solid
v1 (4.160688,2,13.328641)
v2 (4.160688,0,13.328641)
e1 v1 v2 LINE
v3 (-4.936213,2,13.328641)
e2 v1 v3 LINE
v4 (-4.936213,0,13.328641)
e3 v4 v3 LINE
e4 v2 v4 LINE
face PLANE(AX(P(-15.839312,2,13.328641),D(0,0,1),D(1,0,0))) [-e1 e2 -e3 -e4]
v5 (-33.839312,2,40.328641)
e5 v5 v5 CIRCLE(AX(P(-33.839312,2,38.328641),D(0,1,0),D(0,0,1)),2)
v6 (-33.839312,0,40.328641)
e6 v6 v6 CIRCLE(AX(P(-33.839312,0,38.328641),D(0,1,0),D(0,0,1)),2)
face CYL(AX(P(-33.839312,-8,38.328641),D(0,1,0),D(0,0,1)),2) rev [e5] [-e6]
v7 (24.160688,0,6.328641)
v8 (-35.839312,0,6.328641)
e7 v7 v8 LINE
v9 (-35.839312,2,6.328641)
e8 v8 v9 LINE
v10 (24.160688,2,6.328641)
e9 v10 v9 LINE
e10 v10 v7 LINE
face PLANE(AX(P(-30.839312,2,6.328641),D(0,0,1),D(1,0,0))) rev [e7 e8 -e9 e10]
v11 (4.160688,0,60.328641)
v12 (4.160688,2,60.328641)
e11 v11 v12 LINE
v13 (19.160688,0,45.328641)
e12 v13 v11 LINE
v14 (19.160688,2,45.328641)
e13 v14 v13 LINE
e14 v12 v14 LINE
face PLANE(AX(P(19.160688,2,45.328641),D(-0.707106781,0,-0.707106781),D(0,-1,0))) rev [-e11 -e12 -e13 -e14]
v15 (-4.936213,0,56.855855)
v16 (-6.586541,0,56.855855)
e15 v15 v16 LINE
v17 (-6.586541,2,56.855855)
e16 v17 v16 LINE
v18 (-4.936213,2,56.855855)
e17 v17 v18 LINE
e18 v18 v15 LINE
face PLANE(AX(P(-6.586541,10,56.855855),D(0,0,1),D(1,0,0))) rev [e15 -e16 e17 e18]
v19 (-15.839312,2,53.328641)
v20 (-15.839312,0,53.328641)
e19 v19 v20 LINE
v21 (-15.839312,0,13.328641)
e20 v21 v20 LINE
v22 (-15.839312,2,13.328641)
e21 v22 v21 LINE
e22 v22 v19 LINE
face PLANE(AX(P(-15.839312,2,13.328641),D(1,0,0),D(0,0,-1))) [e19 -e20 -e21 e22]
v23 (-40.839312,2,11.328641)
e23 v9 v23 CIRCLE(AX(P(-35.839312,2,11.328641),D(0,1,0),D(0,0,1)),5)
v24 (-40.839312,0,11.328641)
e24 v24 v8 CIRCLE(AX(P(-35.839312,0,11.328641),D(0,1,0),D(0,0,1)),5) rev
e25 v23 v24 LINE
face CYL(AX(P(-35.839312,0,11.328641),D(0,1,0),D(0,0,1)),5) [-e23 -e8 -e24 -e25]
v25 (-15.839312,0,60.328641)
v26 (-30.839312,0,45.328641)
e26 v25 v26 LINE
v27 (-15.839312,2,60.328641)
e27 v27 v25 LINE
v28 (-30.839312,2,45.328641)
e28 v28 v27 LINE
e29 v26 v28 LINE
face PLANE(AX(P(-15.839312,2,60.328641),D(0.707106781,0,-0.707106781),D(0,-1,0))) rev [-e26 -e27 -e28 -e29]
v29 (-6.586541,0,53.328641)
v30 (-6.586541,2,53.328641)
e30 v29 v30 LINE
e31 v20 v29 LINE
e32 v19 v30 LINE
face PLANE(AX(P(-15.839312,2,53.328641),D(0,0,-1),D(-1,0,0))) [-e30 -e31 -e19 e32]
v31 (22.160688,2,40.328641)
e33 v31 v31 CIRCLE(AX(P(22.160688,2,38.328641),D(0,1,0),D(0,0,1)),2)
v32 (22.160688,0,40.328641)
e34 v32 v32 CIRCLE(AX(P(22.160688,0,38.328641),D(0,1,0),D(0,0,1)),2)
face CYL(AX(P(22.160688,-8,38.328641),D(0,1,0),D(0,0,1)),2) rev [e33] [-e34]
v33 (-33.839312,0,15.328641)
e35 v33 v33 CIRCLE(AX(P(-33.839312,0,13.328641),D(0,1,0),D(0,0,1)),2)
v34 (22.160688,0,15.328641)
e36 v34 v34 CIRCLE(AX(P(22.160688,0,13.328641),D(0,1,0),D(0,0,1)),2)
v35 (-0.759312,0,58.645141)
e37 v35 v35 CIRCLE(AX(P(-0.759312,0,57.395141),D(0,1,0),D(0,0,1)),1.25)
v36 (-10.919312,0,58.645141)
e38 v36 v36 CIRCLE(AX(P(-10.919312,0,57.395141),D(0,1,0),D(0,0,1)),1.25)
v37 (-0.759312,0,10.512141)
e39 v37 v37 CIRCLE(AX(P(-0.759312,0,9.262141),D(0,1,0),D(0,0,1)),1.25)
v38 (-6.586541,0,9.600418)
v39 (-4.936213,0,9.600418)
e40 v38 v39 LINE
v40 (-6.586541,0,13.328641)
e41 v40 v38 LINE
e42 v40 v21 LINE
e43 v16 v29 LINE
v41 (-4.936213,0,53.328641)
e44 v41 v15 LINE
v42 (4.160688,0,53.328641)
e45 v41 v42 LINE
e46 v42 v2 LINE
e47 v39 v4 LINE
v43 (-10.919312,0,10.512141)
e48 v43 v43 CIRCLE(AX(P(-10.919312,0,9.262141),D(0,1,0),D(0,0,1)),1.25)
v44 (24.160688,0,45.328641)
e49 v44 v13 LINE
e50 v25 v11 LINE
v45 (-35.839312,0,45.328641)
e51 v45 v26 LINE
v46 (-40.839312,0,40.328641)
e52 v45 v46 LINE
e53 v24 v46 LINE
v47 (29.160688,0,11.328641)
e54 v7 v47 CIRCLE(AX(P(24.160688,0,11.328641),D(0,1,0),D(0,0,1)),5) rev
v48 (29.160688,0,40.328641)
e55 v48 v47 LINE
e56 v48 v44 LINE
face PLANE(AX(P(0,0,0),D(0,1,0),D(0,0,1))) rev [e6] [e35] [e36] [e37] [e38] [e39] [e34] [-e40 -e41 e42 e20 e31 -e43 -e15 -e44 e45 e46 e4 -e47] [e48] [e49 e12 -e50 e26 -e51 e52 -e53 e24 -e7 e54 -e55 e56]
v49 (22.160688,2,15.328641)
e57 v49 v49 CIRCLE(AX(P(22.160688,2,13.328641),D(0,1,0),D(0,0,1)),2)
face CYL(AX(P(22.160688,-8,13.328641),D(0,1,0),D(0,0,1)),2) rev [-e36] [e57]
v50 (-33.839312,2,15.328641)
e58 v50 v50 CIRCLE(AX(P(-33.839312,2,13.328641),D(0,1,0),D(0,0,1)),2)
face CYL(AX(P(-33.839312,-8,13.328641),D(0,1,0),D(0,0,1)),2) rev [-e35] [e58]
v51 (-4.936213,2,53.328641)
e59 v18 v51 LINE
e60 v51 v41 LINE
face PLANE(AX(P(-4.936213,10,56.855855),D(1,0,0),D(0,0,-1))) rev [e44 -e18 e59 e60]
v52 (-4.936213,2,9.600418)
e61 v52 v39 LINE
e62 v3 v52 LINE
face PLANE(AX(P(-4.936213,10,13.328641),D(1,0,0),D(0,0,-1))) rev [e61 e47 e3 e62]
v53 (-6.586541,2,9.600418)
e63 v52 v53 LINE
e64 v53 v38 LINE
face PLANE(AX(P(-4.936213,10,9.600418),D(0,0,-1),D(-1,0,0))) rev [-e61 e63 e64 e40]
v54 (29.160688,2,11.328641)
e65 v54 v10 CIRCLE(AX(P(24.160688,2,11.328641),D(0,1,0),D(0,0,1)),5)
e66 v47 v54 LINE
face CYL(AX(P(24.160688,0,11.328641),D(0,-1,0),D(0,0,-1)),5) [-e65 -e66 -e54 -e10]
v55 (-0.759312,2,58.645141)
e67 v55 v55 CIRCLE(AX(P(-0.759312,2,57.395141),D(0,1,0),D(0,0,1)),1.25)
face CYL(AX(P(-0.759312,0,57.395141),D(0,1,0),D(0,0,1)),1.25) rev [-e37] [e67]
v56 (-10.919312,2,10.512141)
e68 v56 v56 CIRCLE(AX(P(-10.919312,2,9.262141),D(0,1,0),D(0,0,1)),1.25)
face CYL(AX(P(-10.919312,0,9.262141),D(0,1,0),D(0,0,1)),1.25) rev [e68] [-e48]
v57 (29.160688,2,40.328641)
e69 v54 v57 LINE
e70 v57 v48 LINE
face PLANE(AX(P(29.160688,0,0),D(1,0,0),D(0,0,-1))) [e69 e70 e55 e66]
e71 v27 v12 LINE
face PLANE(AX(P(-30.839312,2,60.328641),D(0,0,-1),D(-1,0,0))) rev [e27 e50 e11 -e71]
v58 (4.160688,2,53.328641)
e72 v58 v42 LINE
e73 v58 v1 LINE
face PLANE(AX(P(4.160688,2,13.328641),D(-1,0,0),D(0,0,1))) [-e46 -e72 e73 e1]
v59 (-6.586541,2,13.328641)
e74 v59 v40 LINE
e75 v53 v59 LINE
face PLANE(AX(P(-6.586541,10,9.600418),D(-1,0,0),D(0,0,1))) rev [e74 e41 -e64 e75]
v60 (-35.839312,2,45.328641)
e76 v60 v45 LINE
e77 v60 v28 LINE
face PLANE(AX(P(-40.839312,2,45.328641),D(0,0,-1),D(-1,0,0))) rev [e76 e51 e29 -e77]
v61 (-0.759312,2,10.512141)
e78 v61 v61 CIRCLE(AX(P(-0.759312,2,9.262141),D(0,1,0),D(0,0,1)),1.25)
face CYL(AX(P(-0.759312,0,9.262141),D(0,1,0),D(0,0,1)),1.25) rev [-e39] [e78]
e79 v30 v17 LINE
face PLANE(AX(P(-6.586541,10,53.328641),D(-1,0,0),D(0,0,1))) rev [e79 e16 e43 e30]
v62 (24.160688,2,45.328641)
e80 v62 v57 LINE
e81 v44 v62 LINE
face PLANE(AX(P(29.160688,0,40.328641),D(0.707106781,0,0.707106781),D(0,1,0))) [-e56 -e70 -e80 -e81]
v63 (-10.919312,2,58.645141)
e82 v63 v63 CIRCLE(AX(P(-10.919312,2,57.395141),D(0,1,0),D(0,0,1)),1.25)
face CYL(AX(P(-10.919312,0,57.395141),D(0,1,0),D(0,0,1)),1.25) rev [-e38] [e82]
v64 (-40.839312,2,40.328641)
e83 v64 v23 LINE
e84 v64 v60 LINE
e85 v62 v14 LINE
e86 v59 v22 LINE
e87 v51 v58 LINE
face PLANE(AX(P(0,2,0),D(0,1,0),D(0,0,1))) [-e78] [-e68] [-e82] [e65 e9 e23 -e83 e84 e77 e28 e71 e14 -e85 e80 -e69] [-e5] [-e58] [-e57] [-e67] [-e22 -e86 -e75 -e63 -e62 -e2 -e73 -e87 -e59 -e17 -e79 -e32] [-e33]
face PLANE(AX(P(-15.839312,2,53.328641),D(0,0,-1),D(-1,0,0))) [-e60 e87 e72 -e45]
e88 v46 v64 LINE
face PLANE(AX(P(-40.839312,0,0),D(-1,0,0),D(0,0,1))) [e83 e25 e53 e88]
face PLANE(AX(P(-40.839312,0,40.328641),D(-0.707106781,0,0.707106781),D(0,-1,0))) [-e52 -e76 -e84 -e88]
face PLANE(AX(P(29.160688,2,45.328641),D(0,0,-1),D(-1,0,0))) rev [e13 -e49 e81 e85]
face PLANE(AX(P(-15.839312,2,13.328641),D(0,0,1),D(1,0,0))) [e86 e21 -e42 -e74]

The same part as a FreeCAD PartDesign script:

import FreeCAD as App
import Part
import Sketcher
from FreeCAD import Vector
Q = App.Units.Quantity


def edges_at(feature, points):
    """Names of the edges that pass closest to the given points."""
    edges = feature.Shape.Edges
    near = lambda p: min(range(len(edges)), key=lambda i: edges[i].distToShape(Part.Vertex(*p))[0])
    return sorted({f"Edge{near(p) + 1}" for p in points})


def add_polygon(sketch, points):
    """Adds a closed chain of lines whose ends are joined by coincident constraints."""
    first, n = sketch.GeometryCount, len(points)
    for a, b in zip(points, points[1:] + points[:1]):
        sketch.addGeometry(Part.LineSegment(App.Vector(*a, 0), App.Vector(*b, 0)), False)
    for i in range(n):
        sketch.addConstraint(Sketcher.Constraint("Coincident", first + i, 2, first + (i + 1) % n, 1))

doc = App.newDocument("Part")
body = doc.addObject("PartDesign::Body", "Body")

# Sketch on XZ plane
sketch1 = body.newObject("Sketcher::SketchObject", "Sketch")
sketch1.AttachmentSupport = (doc.getObject("XZ_Plane"), [""])
sketch1.MapMode = "FlatFace"
add_polygon(sketch1, [(-31, 6), (-31, 60), (19, 60), (19, 6)])  # lines 0-3
add_polygon(sketch1, [(4, 53), (-16, 53), (-16, 13), (4, 13)])  # lines 4-7
sketch1.addConstraint([
    Sketcher.Constraint("Vertical", 0),
    Sketcher.Constraint("Horizontal", 1),
    Sketcher.Constraint("Vertical", 2),
    Sketcher.Constraint("Horizontal", 3),
    Sketcher.Constraint("Horizontal", 4),
    Sketcher.Constraint("Vertical", 5),
    Sketcher.Constraint("Horizontal", 6),
    Sketcher.Constraint("Vertical", 7),
    Sketcher.Constraint("DistanceX", 1, 1, 1, 2, Q("50 mm")),
    Sketcher.Constraint("DistanceX", 4, 2, 4, 1, Q("20 mm")),
    Sketcher.Constraint("DistanceY", 0, 1, 0, 2, Q("54 mm")),
    Sketcher.Constraint("DistanceY", 5, 2, 5, 1, Q("40 mm")),
    Sketcher.Constraint("DistanceX", 0, 2, 4, 2, Q("15 mm")),
    Sketcher.Constraint("DistanceY", 4, 2, 0, 2, Q("7 mm")),
    Sketcher.Constraint("DistanceX", 0, 2, -1, 1, Q("30.839312 mm")),
    Sketcher.Constraint("DistanceY", -1, 1, 0, 2, Q("60.328641 mm")),
])
pad1 = body.newObject("PartDesign::Pad", "Pad")
pad1.Profile = sketch1
pad1.Length = 2
pad1.Reversed = True

# Sketch on XZ plane
sketch2 = body.newObject("Sketcher::SketchObject", "Sketch001")
sketch2.AttachmentSupport = (doc.getObject("XZ_Plane"), [""])
sketch2.MapMode = "FlatFace"
sketch2.AttachmentOffset = App.Placement(Vector(0, 0, -2), App.Rotation())
sketch2.addGeometry([
    Part.Circle(Vector(-10.9, 57.4, 0), Vector(0, 0, 1), 1.2),
    Part.Circle(Vector(-0.8, 57.4, 0), Vector(0, 0, 1), 1.2),
    Part.Circle(Vector(-10.9, 9.3, 0), Vector(0, 0, 1), 1.2),
    Part.Circle(Vector(-0.8, 9.3, 0), Vector(0, 0, 1), 1.2),
], False)
sketch2.addConstraint([
    Sketcher.Constraint("Equal", 0, 1),
    Sketcher.Constraint("Equal", 1, 2),
    Sketcher.Constraint("Equal", 2, 3),
    Sketcher.Constraint("Horizontal", 0, 3, 1, 3),
    Sketcher.Constraint("Horizontal", 2, 3, 3, 3),
    Sketcher.Constraint("Vertical", 0, 3, 2, 3),
    Sketcher.Constraint("Vertical", 1, 3, 3, 3),
    Sketcher.Constraint("Diameter", 0, Q("2.5 mm")),
    Sketcher.Constraint("DistanceX", 0, 3, 1, 3, Q("10.16 mm")),
    Sketcher.Constraint("DistanceY", 2, 3, 0, 3, Q("48.133 mm")),
    Sketcher.Constraint("DistanceX", 0, 3, -1, 1, Q("10.919312 mm")),
    Sketcher.Constraint("DistanceY", -1, 1, 0, 3, Q("57.395141 mm")),
])
pocket1 = body.newObject("PartDesign::Pocket", "Pocket")
pocket1.Profile = sketch2
pocket1.Length = 2
pocket1.Reversed = True
doc.recompute()

chamfer = body.newObject("PartDesign::Chamfer", "Chamfer")
chamfer.Base = (pocket1, edges_at(pocket1, [(19.161, 1, 60.329), (-30.839, 1, 60.329)]))
chamfer.Size = 15

# Sketch on YZ plane
sketch3 = body.newObject("Sketcher::SketchObject", "Sketch002")
sketch3.AttachmentSupport = (doc.getObject("YZ_Plane"), [""])
sketch3.MapMode = "FlatFace"
sketch3.AttachmentOffset = App.Placement(Vector(0, 0, 19.160688), App.Rotation())
add_polygon(sketch3, [(2, 45.3), (0, 45.3), (0, 6.3), (2, 6.3)])  # lines 0-3
sketch3.addConstraint([
    Sketcher.Constraint("Horizontal", 0),
    Sketcher.Constraint("Vertical", 1),
    Sketcher.Constraint("Horizontal", 2),
    Sketcher.Constraint("Vertical", 3),
    Sketcher.Constraint("PointOnObject", 0, 2, -2),
    Sketcher.Constraint("DistanceX", 0, 2, 0, 1, Q("2 mm")),
    Sketcher.Constraint("DistanceY", 1, 2, 1, 1, Q("39 mm")),
    Sketcher.Constraint("DistanceY", -1, 1, 0, 2, Q("45.328641 mm")),
])
pad2 = body.newObject("PartDesign::Pad", "Pad001")
pad2.Profile = sketch3
pad2.Length = 10

# Sketch on YZ plane
sketch4 = body.newObject("Sketcher::SketchObject", "Sketch003")
sketch4.AttachmentSupport = (doc.getObject("YZ_Plane"), [""])
sketch4.MapMode = "FlatFace"
sketch4.AttachmentOffset = App.Placement(Vector(0, 0, -30.839312), App.Rotation())
add_polygon(sketch4, [(2, 6.3), (0, 6.3), (0, 45.3), (2, 45.3)])  # lines 0-3
sketch4.addConstraint([
    Sketcher.Constraint("Horizontal", 0),
    Sketcher.Constraint("Vertical", 1),
    Sketcher.Constraint("Horizontal", 2),
    Sketcher.Constraint("Vertical", 3),
    Sketcher.Constraint("PointOnObject", 0, 2, -2),
    Sketcher.Constraint("DistanceX", 0, 2, 0, 1, Q("2 mm")),
    Sketcher.Constraint("DistanceY", 1, 1, 1, 2, Q("39 mm")),
    Sketcher.Constraint("DistanceY", -1, 1, 0, 2, Q("6.328641 mm")),
])
pad3 = body.newObject("PartDesign::Pad", "Pad002")
pad3.Profile = sketch4
pad3.Length = 10
pad3.Reversed = True
doc.recompute()

chamfer2 = body.newObject("PartDesign::Chamfer", "Chamfer001")
chamfer2.Base = (pad3, edges_at(pad3, [(29.161, 1, 45.329), (-40.839, 1, 45.329)]))
chamfer2.Size = 5

# Sketch on XZ plane
sketch5 = body.newObject("Sketcher::SketchObject", "Sketch004")
sketch5.AttachmentSupport = (doc.getObject("XZ_Plane"), [""])
sketch5.MapMode = "FlatFace"
sketch5.AttachmentOffset = App.Placement(Vector(0, 0, -2), App.Rotation())
sketch5.addGeometry([
    Part.Circle(Vector(22.2, 38.3, 0), Vector(0, 0, 1), 2),
    Part.Circle(Vector(-33.8, 38.3, 0), Vector(0, 0, 1), 2),
    Part.Circle(Vector(-33.8, 13.3, 0), Vector(0, 0, 1), 2),
    Part.Circle(Vector(22.2, 13.3, 0), Vector(0, 0, 1), 2),
], False)
sketch5.addConstraint([
    Sketcher.Constraint("Equal", 0, 1),
    Sketcher.Constraint("Equal", 1, 2),
    Sketcher.Constraint("Equal", 2, 3),
    Sketcher.Constraint("Horizontal", 0, 3, 1, 3),
    Sketcher.Constraint("Horizontal", 2, 3, 3, 3),
    Sketcher.Constraint("Vertical", 1, 3, 2, 3),
    Sketcher.Constraint("Vertical", 0, 3, 3, 3),
    Sketcher.Constraint("Diameter", 0, Q("4 mm")),
    Sketcher.Constraint("DistanceX", 1, 3, 0, 3, Q("56 mm")),
    Sketcher.Constraint("DistanceY", 2, 3, 1, 3, Q("25 mm")),
    Sketcher.Constraint("DistanceX", -1, 1, 0, 3, Q("22.160688 mm")),
    Sketcher.Constraint("DistanceY", -1, 1, 0, 3, Q("38.328641 mm")),
])
pocket2 = body.newObject("PartDesign::Pocket", "Pocket001")
pocket2.Profile = sketch5
pocket2.Length = 10
pocket2.Reversed = True

# Sketch on XZ plane
sketch6 = body.newObject("Sketcher::SketchObject", "Sketch005")
sketch6.AttachmentSupport = (doc.getObject("XZ_Plane"), [""])
sketch6.MapMode = "FlatFace"
add_polygon(sketch6, [(-6.6, 56.9), (-6.6, 53.3), (-4.9, 53.3), (-4.9, 56.9)])  # lines 0-3
add_polygon(sketch6, [(-6.6, 13.3), (-6.6, 9.6), (-4.9, 9.6), (-4.9, 13.3)])  # lines 4-7
sketch6.addConstraint([
    Sketcher.Constraint("Vertical", 0),
    Sketcher.Constraint("Horizontal", 1),
    Sketcher.Constraint("Vertical", 2),
    Sketcher.Constraint("Horizontal", 3),
    Sketcher.Constraint("Vertical", 4),
    Sketcher.Constraint("Horizontal", 5),
    Sketcher.Constraint("Vertical", 6),
    Sketcher.Constraint("Horizontal", 7),
    Sketcher.Constraint("Vertical", 3, 2, 4, 2),
    Sketcher.Constraint("Vertical", 2, 2, 5, 2),
    Sketcher.Constraint("DistanceY", 6, 2, 1, 2, Q("40 mm")),
    Sketcher.Constraint("DistanceX", 1, 1, 1, 2, Q("1.650328 mm")),
    Sketcher.Constraint("DistanceY", 0, 2, 0, 1, Q("3.527213 mm")),
    Sketcher.Constraint("DistanceY", 4, 2, 4, 1, Q("3.728224 mm")),
    Sketcher.Constraint("DistanceX", 0, 2, -1, 1, Q("6.586541 mm")),
    Sketcher.Constraint("DistanceY", -1, 1, 0, 2, Q("53.328641 mm")),
])
pocket3 = body.newObject("PartDesign::Pocket", "Pocket002")
pocket3.Profile = sketch6
pocket3.Length = 10
doc.recompute()

fillet = body.newObject("PartDesign::Fillet", "Fillet")
fillet.Base = (pocket3, edges_at(pocket3, [(29.161, 1, 6.329), (-40.839, 1, 6.329)]))
fillet.Radius = 5

doc.recompute()
